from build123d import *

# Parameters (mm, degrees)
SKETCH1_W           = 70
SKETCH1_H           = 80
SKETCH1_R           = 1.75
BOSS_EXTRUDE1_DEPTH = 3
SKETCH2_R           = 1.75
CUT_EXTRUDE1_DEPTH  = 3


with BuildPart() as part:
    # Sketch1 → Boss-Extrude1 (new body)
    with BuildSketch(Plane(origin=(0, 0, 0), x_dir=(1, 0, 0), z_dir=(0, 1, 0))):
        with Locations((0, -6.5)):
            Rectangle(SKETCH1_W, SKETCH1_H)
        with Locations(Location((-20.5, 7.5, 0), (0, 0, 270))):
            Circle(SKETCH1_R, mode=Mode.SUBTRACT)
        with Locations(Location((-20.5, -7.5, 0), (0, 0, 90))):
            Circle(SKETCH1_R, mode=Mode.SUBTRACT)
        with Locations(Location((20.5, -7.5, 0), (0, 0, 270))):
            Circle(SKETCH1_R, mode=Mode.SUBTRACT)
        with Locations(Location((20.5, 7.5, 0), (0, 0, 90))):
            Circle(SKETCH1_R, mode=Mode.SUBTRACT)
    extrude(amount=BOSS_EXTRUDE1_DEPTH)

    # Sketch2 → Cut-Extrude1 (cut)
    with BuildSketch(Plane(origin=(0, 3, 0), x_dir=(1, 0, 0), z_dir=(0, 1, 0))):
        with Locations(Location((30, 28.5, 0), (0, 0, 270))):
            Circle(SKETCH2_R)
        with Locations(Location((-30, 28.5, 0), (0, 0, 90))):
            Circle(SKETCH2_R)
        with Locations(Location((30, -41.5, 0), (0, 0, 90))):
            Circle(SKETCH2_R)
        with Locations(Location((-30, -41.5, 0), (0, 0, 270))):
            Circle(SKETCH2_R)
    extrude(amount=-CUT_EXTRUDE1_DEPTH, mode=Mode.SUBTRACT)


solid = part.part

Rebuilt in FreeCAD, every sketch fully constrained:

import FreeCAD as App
import Part
import Sketcher

doc = App.newDocument("Part")
params = doc.addObject("Spreadsheet::Sheet", "Params")
for row, (alias, value) in enumerate([
    ("sketch1_diameter", "3.5 mm"),
    ("sketch1_width", "70 mm"),
    ("sketch1_height", "80 mm"),
    ("pad1_length", "3 mm"),
    ("sketch2_diameter", "3.5 mm"),
    ("pocket1_length", "3 mm"),
], start=1):
    params.set(f"A{row}", alias)
    params.set(f"B{row}", "=" + value)
    params.setAlias(f"B{row}", alias)

body = doc.addObject("PartDesign::Body", "Body")

# Sketch on XZ plane
sketch1 = doc.addObject("Sketcher::SketchObject", "Sketch")
body.addObject(sketch1)
sketch1.AttachmentSupport = (doc.XZ_Plane, [""])
sketch1.MapMode = "FlatFace"
sketch1.addGeometry(Part.LineSegment(App.Vector(-35, -33.5, 0), App.Vector(-35, 46.5, 0)), False)
sketch1.addGeometry(Part.LineSegment(App.Vector(-35, 46.5, 0), App.Vector(35, 46.5, 0)), False)
sketch1.addGeometry(Part.LineSegment(App.Vector(35, 46.5, 0), App.Vector(35, -33.5, 0)), False)
sketch1.addGeometry(Part.LineSegment(App.Vector(35, -33.5, 0), App.Vector(-35, -33.5, 0)), False)
sketch1.addGeometry(Part.Circle(App.Vector(-20.5, 7.5, 0), App.Vector(0, 0, 1), 1.8), False)
sketch1.addGeometry(Part.Circle(App.Vector(20.5, 7.5, 0), App.Vector(0, 0, 1), 1.8), False)
sketch1.addGeometry(Part.Circle(App.Vector(-20.5, -7.5, 0), App.Vector(0, 0, 1), 1.8), False)
sketch1.addGeometry(Part.Circle(App.Vector(20.5, -7.5, 0), App.Vector(0, 0, 1), 1.8), False)
sketch1.addConstraint(Sketcher.Constraint("Coincident", 0, 2, 1, 1))
sketch1.addConstraint(Sketcher.Constraint("Coincident", 1, 2, 2, 1))
sketch1.addConstraint(Sketcher.Constraint("Coincident", 2, 2, 3, 1))
sketch1.addConstraint(Sketcher.Constraint("Coincident", 3, 2, 0, 1))
sketch1.addConstraint(Sketcher.Constraint("Vertical", 0))
sketch1.addConstraint(Sketcher.Constraint("Horizontal", 1))
sketch1.addConstraint(Sketcher.Constraint("Vertical", 2))
sketch1.addConstraint(Sketcher.Constraint("Horizontal", 3))
sketch1.addConstraint(Sketcher.Constraint("Equal", 4, 5))
sketch1.addConstraint(Sketcher.Constraint("Equal", 5, 6))
sketch1.addConstraint(Sketcher.Constraint("Equal", 6, 7))
sketch1.addConstraint(Sketcher.Constraint("Symmetric", 5, 3, 6, 3, -1, 1))
sketch1.addConstraint(Sketcher.Constraint("Symmetric", 4, 3, 7, 3, -1, 1))
sketch1.addConstraint(Sketcher.Constraint("Symmetric", 4, 3, 5, 3, -2))
sketch1.addConstraint(Sketcher.Constraint("Diameter", 4, 3.5))
sketch1.addConstraint(Sketcher.Constraint("DistanceX", 1, 1, 1, 2, 70.0))
sketch1.addConstraint(Sketcher.Constraint("DistanceY", 0, 1, 0, 2, 80.0))
sketch1.addConstraint(Sketcher.Constraint("DistanceX", 0, 2, -1, 1, 35.0))
sketch1.addConstraint(Sketcher.Constraint("DistanceX", 4, 3, 5, 3, 41.0))
sketch1.addConstraint(Sketcher.Constraint("DistanceY", 6, 3, 4, 3, 15.0))
sketch1.addConstraint(Sketcher.Constraint("DistanceY", 4, 3, 0, 2, 39.0))
sketch1.setExpression("Constraints[14]", "Params.sketch1_diameter")
sketch1.setExpression("Constraints[15]", "Params.sketch1_width")
sketch1.setExpression("Constraints[16]", "Params.sketch1_height")
pad1 = doc.addObject("PartDesign::Pad", "Pad")
body.addObject(pad1)
pad1.Profile = sketch1
pad1.setExpression("Length", "Params.pad1_length")
pad1.Reversed = True

# Sketch on XZ plane
sketch2 = doc.addObject("Sketcher::SketchObject", "Sketch001")
body.addObject(sketch2)
sketch2.AttachmentSupport = (doc.XZ_Plane, [""])
sketch2.MapMode = "FlatFace"
sketch2.AttachmentOffset = App.Placement(App.Vector(0, 0, -3), App.Rotation())
sketch2.addGeometry(Part.Circle(App.Vector(30, -28.5, 0), App.Vector(0, 0, 1), 1.8), False)
sketch2.addGeometry(Part.Circle(App.Vector(-30, -28.5, 0), App.Vector(0, 0, 1), 1.8), False)
sketch2.addGeometry(Part.Circle(App.Vector(30, 41.5, 0), App.Vector(0, 0, 1), 1.8), False)
sketch2.addGeometry(Part.Circle(App.Vector(-30, 41.5, 0), App.Vector(0, 0, 1), 1.8), False)
sketch2.addConstraint(Sketcher.Constraint("Equal", 0, 1))
sketch2.addConstraint(Sketcher.Constraint("Equal", 1, 2))
sketch2.addConstraint(Sketcher.Constraint("Equal", 2, 3))
sketch2.addConstraint(Sketcher.Constraint("Symmetric", 0, 3, 1, 3, -2))
sketch2.addConstraint(Sketcher.Constraint("Symmetric", 2, 3, 3, 3, -2))
sketch2.addConstraint(Sketcher.Constraint("Vertical", 0, 3, 2, 3))
sketch2.addConstraint(Sketcher.Constraint("Diameter", 0, 3.5))
sketch2.addConstraint(Sketcher.Constraint("DistanceX", -1, 1, 0, 3, 30.0))
sketch2.addConstraint(Sketcher.Constraint("DistanceY", 0, 3, 2, 3, 70.0))
sketch2.addConstraint(Sketcher.Constraint("DistanceY", 0, 3, -1, 1, 28.5))
sketch2.setExpression("Constraints[6]", "Params.sketch2_diameter")
pocket1 = doc.addObject("PartDesign::Pocket", "Pocket")
body.addObject(pocket1)
pocket1.Profile = sketch2
pocket1.setExpression("Length", "Params.pocket1_length")
pocket1.Reversed = True

doc.recompute()
